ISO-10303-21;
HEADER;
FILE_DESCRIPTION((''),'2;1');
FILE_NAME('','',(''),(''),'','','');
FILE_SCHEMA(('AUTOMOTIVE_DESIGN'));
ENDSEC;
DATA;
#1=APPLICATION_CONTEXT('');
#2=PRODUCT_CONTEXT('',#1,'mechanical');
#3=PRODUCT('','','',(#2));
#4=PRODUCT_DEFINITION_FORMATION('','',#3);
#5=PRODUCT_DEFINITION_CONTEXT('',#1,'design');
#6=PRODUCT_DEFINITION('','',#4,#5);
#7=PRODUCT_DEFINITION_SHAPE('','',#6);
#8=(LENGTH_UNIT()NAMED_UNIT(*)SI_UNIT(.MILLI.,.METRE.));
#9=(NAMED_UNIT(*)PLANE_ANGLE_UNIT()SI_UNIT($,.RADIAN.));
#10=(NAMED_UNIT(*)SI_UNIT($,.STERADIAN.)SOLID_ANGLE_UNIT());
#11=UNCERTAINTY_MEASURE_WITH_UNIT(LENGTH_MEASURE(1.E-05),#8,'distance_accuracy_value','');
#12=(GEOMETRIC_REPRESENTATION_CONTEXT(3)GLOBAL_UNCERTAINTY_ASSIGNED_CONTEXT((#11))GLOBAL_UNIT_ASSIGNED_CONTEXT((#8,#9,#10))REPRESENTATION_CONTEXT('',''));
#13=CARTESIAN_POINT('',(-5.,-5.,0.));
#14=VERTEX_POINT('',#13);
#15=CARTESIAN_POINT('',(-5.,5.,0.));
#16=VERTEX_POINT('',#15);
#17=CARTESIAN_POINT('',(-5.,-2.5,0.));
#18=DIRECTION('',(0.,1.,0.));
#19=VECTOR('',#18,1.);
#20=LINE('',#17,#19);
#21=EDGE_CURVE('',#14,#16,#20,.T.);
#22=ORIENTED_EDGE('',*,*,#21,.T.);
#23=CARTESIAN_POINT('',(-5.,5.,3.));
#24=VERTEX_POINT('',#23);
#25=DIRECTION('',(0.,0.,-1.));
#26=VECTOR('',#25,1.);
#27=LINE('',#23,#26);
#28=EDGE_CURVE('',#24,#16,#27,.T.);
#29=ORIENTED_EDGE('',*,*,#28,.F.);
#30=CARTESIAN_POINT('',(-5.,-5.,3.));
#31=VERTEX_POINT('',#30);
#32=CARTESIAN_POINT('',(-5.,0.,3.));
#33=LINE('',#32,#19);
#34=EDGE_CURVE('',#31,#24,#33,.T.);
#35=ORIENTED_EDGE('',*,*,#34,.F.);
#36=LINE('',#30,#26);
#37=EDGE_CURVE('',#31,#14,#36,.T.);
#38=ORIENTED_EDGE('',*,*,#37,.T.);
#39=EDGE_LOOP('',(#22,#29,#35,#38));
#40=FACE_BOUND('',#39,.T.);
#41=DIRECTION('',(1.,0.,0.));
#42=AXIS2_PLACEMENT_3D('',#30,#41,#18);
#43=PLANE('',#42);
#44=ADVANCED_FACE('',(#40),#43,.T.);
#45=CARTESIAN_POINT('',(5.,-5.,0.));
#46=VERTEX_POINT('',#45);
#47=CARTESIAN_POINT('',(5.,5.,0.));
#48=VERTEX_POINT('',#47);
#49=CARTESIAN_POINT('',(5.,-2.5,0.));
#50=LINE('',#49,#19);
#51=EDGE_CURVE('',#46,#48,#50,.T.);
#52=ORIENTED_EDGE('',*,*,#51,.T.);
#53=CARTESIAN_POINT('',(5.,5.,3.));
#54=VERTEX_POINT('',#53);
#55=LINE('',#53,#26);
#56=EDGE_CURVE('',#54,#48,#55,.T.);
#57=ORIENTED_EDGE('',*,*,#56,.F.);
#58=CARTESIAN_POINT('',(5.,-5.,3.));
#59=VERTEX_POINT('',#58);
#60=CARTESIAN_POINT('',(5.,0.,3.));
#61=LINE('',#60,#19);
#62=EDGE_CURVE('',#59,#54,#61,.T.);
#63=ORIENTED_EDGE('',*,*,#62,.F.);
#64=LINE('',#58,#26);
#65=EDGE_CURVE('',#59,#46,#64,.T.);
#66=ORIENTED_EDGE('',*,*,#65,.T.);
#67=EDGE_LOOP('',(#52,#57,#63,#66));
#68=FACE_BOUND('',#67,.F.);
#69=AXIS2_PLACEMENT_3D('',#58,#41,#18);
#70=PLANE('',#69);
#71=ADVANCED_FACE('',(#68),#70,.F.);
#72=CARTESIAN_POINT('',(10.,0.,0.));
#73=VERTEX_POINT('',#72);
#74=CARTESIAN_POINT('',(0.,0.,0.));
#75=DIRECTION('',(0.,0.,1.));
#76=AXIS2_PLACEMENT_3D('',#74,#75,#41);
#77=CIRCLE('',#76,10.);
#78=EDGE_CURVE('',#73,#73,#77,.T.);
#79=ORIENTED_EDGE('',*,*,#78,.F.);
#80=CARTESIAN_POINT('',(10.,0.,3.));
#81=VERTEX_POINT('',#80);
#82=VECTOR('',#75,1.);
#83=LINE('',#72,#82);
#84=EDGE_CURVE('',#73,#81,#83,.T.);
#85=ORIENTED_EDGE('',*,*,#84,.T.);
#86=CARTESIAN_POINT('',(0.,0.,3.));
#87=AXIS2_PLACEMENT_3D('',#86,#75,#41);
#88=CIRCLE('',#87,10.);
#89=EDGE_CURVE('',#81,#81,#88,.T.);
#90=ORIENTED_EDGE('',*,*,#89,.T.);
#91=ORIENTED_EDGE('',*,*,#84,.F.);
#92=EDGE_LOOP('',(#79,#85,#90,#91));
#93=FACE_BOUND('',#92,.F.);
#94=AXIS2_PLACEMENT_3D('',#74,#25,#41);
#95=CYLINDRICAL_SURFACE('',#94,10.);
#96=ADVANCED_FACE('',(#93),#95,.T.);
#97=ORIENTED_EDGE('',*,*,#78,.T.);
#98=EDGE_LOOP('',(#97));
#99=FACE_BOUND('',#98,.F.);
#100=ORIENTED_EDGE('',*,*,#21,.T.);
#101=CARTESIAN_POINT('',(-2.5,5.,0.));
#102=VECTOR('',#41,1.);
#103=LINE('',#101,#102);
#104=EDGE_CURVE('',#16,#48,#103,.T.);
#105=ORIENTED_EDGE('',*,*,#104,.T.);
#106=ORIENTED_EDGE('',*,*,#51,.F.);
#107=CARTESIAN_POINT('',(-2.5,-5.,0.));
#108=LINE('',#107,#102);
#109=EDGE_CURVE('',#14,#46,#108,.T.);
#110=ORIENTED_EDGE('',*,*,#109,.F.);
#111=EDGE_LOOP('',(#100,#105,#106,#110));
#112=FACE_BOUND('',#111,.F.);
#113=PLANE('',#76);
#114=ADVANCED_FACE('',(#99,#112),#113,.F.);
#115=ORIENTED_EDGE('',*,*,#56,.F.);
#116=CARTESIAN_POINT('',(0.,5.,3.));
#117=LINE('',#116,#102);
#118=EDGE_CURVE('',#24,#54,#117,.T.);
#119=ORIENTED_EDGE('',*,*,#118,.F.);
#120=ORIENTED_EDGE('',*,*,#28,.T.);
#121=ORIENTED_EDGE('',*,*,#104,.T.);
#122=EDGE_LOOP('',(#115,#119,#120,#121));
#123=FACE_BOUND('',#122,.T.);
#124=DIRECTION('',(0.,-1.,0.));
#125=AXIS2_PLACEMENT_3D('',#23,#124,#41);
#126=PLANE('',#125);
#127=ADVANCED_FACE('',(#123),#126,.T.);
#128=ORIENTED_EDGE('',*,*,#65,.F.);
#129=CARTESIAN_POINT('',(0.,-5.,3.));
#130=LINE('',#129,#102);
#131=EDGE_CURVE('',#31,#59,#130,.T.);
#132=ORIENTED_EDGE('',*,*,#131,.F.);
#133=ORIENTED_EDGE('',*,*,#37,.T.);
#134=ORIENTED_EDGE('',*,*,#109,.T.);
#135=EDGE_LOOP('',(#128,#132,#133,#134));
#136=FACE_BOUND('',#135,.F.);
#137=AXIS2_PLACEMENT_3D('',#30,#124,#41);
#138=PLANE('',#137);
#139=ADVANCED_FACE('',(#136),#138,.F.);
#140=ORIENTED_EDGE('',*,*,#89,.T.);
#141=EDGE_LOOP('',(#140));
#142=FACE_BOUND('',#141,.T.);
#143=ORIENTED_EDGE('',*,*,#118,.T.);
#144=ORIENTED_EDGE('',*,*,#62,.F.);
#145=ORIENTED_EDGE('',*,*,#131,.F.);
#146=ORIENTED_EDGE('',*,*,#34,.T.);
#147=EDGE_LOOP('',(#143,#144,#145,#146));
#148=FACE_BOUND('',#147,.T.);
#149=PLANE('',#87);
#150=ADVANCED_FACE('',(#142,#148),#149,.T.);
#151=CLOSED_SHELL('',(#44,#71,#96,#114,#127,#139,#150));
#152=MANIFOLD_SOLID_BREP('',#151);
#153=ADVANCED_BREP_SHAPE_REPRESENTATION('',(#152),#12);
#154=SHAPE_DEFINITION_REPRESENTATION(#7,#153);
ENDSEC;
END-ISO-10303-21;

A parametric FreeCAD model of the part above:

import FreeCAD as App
import Part
import Sketcher
from FreeCAD import Vector
Q = App.Units.Quantity

doc = App.newDocument("Part")
params = doc.addObject("Spreadsheet::Sheet", "Params")
for row, (alias, value) in enumerate([
    ("sketch1_diameter", "20 mm"),
    ("pad1_length", "3 mm"),
    ("sketch2_width", "10 mm"),
], start=1):
    params.set(f"A{row}", alias)
    params.set(f"B{row}", "=" + value)
    params.setAlias(f"B{row}", alias)

body = doc.addObject("PartDesign::Body", "Body")

sketch1 = body.newObject("Sketcher::SketchObject", "Sketch")
sketch1.AttachmentSupport = (doc.getObject("XY_Plane"), [""])
sketch1.MapMode = "FlatFace"
sketch1.addGeometry(Part.Circle(Vector(0, 0, 0), Vector(0, 0, 1), 10), False)
sketch1.addConstraint([
    Sketcher.Constraint("Coincident", 0, 3, -1, 1),
    Sketcher.Constraint("Diameter", 0, Q("20 mm")),
])
sketch1.setExpression("Constraints[1]", "Params.sketch1_diameter")
pad1 = body.newObject("PartDesign::Pad", "Pad")
pad1.Profile = sketch1
pad1.setExpression("Length", "Params.pad1_length")

sketch2 = body.newObject("Sketcher::SketchObject", "Sketch001")
sketch2.AttachmentSupport = (doc.getObject("XY_Plane"), [""])
sketch2.MapMode = "FlatFace"
sketch2.AttachmentOffset = App.Placement(Vector(0, 0, 3), App.Rotation())
sketch2.addGeometry([
    Part.LineSegment(Vector(-5, 5, 0), Vector(-5, -5, 0)),
    Part.LineSegment(Vector(-5, -5, 0), Vector(5, -5, 0)),
    Part.LineSegment(Vector(5, -5, 0), Vector(5, 5, 0)),
    Part.LineSegment(Vector(5, 5, 0), Vector(-5, 5, 0)),
], False)
sketch2.addConstraint([
    Sketcher.Constraint("Coincident", 0, 2, 1, 1),
    Sketcher.Constraint("Coincident", 1, 2, 2, 1),
    Sketcher.Constraint("Coincident", 2, 2, 3, 1),
    Sketcher.Constraint("Coincident", 3, 2, 0, 1),
    Sketcher.Constraint("Vertical", 0),
    Sketcher.Constraint("Horizontal", 1),
    Sketcher.Constraint("Vertical", 2),
    Sketcher.Constraint("Horizontal", 3),
    Sketcher.Constraint("Symmetric", 0, 2, 2, 2, -1, 1),
    Sketcher.Constraint("Equal", 3, 0),
    Sketcher.Constraint("DistanceX", 1, 1, 1, 2, Q("10 mm")),
])
sketch2.setExpression("Constraints[10]", "Params.sketch2_width")
pocket1 = body.newObject("PartDesign::Pocket", "Pocket")
pocket1.Profile = sketch2
pocket1.Type = "ThroughAll"

doc.recompute()
